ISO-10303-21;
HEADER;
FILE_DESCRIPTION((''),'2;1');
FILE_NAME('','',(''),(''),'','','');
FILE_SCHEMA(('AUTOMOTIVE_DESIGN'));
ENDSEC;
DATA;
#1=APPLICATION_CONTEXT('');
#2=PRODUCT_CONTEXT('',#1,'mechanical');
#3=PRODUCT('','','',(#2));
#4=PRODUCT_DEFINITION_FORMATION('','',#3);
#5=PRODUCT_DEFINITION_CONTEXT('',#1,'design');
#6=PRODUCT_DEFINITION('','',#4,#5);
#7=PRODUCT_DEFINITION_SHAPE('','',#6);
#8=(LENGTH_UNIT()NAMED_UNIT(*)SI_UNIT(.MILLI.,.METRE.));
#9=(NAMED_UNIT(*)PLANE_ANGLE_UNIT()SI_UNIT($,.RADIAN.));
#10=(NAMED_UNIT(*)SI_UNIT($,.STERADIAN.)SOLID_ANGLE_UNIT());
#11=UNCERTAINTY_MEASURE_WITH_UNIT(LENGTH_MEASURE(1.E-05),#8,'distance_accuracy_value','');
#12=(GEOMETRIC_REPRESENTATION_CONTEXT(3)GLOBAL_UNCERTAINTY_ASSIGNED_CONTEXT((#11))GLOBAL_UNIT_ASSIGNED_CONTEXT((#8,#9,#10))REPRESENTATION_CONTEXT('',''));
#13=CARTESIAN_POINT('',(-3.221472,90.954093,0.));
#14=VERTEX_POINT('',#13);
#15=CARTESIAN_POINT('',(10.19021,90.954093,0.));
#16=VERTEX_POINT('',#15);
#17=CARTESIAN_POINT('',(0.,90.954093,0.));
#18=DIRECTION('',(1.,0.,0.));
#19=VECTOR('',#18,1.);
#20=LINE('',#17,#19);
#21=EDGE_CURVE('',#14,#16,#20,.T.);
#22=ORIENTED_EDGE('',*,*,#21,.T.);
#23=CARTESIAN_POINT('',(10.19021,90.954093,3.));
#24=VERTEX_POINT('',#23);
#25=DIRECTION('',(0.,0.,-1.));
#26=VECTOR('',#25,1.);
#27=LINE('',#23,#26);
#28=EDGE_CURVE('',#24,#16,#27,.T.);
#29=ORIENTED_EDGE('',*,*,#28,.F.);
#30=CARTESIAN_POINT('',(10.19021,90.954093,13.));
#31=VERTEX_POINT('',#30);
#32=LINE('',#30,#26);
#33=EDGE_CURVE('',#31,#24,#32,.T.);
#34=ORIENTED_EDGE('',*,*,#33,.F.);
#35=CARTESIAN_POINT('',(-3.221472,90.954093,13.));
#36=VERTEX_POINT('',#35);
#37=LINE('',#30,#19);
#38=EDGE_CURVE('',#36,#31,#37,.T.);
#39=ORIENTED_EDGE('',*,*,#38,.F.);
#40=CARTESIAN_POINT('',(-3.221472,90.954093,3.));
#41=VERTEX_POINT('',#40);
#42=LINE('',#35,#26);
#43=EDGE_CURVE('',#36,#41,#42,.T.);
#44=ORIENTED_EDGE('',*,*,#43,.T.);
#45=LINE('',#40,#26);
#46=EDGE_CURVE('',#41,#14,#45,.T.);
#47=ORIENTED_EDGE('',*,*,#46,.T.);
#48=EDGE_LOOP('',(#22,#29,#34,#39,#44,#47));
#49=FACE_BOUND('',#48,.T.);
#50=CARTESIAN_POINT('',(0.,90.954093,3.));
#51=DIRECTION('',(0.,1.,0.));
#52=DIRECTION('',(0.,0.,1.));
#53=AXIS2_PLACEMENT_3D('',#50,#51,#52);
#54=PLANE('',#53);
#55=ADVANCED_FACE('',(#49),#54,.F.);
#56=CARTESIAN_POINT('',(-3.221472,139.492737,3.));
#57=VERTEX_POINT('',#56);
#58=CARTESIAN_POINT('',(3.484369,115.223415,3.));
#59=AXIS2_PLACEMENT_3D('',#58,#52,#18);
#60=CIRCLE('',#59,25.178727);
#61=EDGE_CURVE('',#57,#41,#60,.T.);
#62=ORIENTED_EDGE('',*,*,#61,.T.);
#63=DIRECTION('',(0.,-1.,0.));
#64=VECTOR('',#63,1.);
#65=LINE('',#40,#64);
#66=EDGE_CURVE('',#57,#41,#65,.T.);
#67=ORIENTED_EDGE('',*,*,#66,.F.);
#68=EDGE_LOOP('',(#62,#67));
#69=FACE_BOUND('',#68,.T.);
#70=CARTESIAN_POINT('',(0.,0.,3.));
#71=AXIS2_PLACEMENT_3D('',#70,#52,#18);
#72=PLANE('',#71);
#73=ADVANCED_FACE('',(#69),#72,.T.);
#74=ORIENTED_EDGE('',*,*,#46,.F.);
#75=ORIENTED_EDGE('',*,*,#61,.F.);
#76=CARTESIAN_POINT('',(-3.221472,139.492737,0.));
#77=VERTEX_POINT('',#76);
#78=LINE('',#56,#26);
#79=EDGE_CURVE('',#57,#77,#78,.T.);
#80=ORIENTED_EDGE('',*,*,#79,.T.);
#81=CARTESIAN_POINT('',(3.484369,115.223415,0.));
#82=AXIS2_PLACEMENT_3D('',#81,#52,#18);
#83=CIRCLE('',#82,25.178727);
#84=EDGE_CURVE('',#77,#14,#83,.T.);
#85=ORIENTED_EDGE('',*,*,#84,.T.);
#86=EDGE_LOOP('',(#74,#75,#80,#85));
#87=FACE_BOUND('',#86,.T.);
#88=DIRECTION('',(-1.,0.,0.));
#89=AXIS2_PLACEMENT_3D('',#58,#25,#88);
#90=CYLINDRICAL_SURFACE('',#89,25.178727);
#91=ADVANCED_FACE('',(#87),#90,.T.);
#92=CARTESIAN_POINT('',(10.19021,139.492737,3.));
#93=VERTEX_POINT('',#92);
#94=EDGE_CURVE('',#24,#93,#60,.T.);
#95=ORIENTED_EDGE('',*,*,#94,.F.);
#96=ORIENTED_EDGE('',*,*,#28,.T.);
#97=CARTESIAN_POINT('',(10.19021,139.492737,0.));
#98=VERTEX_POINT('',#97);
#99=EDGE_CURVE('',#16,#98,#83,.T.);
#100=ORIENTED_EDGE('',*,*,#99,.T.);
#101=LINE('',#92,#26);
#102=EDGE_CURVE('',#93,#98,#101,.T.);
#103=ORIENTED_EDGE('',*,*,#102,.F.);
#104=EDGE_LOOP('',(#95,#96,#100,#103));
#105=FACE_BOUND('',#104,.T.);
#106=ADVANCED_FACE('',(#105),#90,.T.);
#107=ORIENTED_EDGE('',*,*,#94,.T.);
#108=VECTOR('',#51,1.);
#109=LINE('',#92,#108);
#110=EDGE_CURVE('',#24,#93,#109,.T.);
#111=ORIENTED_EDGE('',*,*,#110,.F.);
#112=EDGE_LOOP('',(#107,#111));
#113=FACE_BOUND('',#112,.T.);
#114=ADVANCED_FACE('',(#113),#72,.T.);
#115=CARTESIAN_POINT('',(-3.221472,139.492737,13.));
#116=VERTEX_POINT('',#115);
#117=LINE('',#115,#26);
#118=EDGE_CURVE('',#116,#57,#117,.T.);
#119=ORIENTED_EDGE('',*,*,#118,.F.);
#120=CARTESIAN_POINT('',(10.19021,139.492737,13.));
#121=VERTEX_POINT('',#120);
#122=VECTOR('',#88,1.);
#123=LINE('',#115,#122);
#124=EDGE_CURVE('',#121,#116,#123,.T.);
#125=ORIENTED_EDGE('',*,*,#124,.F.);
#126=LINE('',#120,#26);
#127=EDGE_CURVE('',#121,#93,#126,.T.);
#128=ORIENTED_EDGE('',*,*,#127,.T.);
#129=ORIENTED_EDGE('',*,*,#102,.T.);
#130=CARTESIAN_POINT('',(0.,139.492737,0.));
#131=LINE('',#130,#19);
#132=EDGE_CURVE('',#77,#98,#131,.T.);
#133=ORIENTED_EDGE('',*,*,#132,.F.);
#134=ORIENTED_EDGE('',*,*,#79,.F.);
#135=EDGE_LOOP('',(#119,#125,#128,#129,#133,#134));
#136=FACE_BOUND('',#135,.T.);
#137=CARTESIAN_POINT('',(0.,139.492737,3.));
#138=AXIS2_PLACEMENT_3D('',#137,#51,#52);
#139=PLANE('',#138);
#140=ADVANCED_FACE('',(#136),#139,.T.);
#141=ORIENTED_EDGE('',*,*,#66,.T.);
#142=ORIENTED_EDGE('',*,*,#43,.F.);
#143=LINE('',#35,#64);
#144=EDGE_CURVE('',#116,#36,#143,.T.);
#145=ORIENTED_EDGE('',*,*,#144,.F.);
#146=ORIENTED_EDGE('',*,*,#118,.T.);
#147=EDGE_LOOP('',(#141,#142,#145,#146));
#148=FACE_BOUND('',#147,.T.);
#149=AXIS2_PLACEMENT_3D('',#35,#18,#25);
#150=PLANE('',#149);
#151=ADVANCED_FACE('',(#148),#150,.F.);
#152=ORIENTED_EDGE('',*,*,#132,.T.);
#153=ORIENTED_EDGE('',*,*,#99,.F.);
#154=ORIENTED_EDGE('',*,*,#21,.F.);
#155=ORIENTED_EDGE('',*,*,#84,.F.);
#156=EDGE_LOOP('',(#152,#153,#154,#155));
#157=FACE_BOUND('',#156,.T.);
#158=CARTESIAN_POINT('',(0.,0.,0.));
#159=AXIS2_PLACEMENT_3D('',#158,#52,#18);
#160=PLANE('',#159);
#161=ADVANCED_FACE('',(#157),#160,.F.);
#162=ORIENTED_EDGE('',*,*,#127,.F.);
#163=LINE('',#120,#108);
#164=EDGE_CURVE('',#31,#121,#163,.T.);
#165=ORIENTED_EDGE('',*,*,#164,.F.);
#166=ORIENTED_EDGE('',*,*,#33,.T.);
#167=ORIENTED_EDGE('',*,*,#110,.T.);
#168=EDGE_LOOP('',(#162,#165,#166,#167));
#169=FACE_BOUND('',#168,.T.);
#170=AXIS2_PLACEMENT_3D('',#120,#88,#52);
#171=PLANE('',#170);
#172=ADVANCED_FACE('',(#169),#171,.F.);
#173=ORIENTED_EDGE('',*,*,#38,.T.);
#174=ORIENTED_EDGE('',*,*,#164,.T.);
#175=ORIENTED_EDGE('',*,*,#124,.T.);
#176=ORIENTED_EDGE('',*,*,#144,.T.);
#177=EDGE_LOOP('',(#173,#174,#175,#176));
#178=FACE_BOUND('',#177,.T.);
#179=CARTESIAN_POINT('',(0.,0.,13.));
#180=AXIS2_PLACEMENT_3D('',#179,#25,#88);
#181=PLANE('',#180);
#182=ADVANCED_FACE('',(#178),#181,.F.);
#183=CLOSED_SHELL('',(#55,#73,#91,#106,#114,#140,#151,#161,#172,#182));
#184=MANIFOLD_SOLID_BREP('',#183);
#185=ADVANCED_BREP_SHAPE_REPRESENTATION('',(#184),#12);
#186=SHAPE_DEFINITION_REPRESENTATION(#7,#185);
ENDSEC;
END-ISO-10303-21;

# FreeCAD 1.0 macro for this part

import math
import FreeCAD as App
import Part
import Sketcher

V = App.Vector
Q = App.Units.Quantity

doc = App.newDocument("Part")
body = doc.addObject("PartDesign::Body", "Body")

# Sketch on XY plane
sketch1 = body.newObject("Sketcher::SketchObject", "Sketch")
sketch1.AttachmentSupport = (doc.getObject("XY_Plane"), [""])
sketch1.MapMode = "FlatFace"
sketch1.addGeometry([
    Part.LineSegment(V(10, 139, 0), V(-3, 139, 0)),
    Part.ArcOfCircle(Part.Circle(V(3, 115, 0), V(0, 0, 1), 25), math.radians(105), math.radians(255)),
    Part.LineSegment(V(-3, 91, 0), V(10, 91, 0)),
    Part.ArcOfCircle(Part.Circle(V(3, 115, 0), V(0, 0, 1), 25), math.radians(-75), math.radians(75)),
], False)
sketch1.addConstraint([
    Sketcher.Constraint("Coincident", 0, 2, 1, 1),
    Sketcher.Constraint("Coincident", 1, 2, 2, 1),
    Sketcher.Constraint("Coincident", 2, 2, 3, 1),
    Sketcher.Constraint("Coincident", 3, 2, 0, 1),
    Sketcher.Constraint("Horizontal", 0),
    Sketcher.Constraint("Horizontal", 2),
    Sketcher.Constraint("Coincident", 3, 3, 1, 3),
    Sketcher.Constraint("Equal", 1, 3),
    Sketcher.Constraint("Vertical", 0, 2, 1, 2),
    Sketcher.Constraint("Radius", 1, Q("25.178727 mm")),
    Sketcher.Constraint("DistanceX", 0, 2, 0, 1, Q("13.411682 mm")),
    Sketcher.Constraint("DistanceX", -1, 1, 1, 3, Q("3.484369 mm")),
    Sketcher.Constraint("DistanceY", -1, 1, 1, 3, Q("115.223415 mm")),
])
pad1 = body.newObject("PartDesign::Pad", "Pad")
pad1.Profile = sketch1
pad1.Length = 3

# Sketch on XY plane
sketch2 = body.newObject("Sketcher::SketchObject", "Sketch001")
sketch2.AttachmentSupport = (doc.getObject("XY_Plane"), [""])
sketch2.MapMode = "FlatFace"
sketch2.AttachmentOffset = App.Placement(V(0, 0, 3), App.Rotation())
sketch2.addGeometry([
    Part.LineSegment(V(-3, 139, 0), V(-3, 91, 0)),
    Part.LineSegment(V(-3, 91, 0), V(10, 91, 0)),
    Part.LineSegment(V(10, 91, 0), V(10, 139, 0)),
    Part.LineSegment(V(10, 139, 0), V(-3, 139, 0)),
], False)
sketch2.addConstraint([
    Sketcher.Constraint("Coincident", 0, 2, 1, 1),
    Sketcher.Constraint("Coincident", 1, 2, 2, 1),
    Sketcher.Constraint("Coincident", 2, 2, 3, 1),
    Sketcher.Constraint("Coincident", 3, 2, 0, 1),
    Sketcher.Constraint("Vertical", 0),
    Sketcher.Constraint("Horizontal", 1),
    Sketcher.Constraint("Vertical", 2),
    Sketcher.Constraint("Horizontal", 3),
    Sketcher.Constraint("DistanceX", 1, 1, 1, 2, Q("13.411682 mm")),
    Sketcher.Constraint("DistanceY", 0, 2, 0, 1, Q("48.538644 mm")),
    Sketcher.Constraint("DistanceX", 0, 2, -1, 1, Q("3.221472 mm")),
    Sketcher.Constraint("DistanceY", -1, 1, 0, 2, Q("90.954093 mm")),
])
pad2 = body.newObject("PartDesign::Pad", "Pad001")
pad2.Profile = sketch2
pad2.Length = 10

doc.recompute()
